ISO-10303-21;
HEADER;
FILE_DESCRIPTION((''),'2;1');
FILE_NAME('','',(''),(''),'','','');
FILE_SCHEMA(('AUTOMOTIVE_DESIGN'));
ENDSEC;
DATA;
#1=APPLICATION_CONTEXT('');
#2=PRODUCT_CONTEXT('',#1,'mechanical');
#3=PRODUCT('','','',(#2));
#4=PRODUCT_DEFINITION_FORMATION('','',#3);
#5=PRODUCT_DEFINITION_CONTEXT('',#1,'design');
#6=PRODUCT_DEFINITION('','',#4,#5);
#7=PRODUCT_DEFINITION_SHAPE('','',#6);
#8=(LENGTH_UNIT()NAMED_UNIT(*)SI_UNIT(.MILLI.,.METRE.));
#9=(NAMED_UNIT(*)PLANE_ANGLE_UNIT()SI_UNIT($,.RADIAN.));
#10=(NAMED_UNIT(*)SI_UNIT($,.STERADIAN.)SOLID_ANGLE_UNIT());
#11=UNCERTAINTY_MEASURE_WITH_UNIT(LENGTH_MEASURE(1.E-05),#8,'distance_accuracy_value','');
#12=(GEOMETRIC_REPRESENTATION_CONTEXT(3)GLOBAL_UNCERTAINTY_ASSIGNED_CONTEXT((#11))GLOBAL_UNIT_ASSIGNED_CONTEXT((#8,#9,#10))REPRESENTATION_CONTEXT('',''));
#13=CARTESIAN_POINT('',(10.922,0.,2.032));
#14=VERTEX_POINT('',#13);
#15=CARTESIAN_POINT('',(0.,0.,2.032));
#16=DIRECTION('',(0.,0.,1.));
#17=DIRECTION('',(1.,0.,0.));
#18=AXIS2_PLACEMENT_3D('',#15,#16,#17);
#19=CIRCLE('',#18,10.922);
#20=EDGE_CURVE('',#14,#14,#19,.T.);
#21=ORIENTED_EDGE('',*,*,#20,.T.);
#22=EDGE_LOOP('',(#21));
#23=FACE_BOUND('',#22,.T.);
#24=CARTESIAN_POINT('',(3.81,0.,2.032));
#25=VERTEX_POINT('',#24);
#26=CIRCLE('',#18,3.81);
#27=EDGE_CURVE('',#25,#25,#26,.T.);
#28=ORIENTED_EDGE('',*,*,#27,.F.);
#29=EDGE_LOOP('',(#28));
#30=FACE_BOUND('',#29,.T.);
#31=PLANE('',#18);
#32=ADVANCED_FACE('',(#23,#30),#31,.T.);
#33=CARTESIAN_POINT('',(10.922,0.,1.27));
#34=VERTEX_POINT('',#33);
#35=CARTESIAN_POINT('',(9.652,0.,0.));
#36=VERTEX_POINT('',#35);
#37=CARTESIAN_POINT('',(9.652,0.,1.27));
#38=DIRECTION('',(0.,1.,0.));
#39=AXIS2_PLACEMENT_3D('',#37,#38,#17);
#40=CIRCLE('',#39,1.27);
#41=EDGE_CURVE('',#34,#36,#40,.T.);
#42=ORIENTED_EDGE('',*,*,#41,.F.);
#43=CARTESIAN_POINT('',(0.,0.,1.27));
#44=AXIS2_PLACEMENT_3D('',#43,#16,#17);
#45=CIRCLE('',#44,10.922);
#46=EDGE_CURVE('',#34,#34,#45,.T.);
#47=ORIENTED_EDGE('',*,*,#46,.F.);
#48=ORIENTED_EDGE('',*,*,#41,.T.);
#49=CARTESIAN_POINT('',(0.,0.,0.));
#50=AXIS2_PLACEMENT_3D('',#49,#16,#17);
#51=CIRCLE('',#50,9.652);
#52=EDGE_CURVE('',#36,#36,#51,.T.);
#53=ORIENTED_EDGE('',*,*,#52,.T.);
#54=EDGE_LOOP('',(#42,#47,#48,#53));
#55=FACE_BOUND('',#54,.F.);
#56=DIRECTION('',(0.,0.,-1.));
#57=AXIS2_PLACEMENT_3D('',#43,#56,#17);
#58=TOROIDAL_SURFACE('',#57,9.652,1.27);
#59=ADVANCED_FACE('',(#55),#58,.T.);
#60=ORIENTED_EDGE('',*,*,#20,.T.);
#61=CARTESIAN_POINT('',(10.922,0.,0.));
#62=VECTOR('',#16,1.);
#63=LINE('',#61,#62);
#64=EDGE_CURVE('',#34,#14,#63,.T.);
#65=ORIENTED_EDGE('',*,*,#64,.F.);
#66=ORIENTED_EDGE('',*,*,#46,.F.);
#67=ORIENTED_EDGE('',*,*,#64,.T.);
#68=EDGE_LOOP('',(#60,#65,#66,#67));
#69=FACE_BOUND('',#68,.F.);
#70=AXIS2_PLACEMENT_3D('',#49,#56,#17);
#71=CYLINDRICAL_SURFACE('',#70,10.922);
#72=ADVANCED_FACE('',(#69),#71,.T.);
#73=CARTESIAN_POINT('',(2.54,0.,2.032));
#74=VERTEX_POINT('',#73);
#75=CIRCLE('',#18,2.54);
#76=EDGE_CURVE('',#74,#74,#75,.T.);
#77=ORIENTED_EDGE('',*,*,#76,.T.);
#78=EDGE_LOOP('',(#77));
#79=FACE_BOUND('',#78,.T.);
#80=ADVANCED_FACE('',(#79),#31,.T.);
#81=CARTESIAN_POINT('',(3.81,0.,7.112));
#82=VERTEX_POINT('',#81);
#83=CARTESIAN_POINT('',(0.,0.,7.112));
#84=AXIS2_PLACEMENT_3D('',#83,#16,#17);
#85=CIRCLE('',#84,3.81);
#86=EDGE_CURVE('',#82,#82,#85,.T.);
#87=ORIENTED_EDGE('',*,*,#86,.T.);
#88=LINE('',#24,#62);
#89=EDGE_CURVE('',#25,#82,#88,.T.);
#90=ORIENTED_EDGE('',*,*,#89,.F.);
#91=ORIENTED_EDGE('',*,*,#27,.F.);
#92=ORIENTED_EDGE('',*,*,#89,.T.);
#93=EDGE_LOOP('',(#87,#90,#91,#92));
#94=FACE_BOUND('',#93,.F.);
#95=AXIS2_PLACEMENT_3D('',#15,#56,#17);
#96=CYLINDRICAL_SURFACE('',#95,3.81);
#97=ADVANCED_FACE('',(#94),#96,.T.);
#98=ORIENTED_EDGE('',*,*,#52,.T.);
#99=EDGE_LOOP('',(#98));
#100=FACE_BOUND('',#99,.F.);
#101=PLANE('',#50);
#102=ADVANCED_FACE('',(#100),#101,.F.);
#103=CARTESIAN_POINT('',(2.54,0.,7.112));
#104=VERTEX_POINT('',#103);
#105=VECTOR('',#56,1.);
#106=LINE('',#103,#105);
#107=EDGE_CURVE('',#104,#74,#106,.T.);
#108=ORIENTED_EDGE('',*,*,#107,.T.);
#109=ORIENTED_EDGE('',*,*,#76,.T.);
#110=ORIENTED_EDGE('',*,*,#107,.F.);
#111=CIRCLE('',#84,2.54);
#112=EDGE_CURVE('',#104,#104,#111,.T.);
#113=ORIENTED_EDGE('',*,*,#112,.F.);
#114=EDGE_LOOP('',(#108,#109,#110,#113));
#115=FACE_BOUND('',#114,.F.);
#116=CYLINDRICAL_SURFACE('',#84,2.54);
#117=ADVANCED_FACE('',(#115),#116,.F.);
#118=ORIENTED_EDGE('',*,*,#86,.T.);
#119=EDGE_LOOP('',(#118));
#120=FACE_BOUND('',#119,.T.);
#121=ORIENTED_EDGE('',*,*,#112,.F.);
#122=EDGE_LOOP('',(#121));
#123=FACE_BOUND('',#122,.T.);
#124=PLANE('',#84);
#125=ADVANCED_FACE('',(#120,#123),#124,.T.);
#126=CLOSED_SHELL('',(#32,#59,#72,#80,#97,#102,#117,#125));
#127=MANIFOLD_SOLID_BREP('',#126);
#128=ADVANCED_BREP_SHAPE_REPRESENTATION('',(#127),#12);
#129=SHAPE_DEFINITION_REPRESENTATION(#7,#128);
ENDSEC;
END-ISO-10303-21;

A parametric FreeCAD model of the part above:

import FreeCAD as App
import Part
import Sketcher
from FreeCAD import Vector
Q = App.Units.Quantity


def edges_at(feature, points):
    """Names of the edges that pass closest to the given points."""
    edges = feature.Shape.Edges
    near = lambda p: min(range(len(edges)), key=lambda i: edges[i].distToShape(Part.Vertex(*p))[0])
    return sorted({f"Edge{near(p) + 1}" for p in points})

doc = App.newDocument("Part")
body = doc.addObject("PartDesign::Body", "Body")

# Sketch on XY plane
sketch1 = doc.addObject("Sketcher::SketchObject", "Sketch")
body.addObject(sketch1)
sketch1.AttachmentSupport = (doc.XY_Plane, [""])
sketch1.MapMode = "FlatFace"
sketch1.addGeometry(Part.Circle(Vector(0, 0, 0), Vector(0, 0, 1), 11), False)
sketch1.addConstraint(Sketcher.Constraint("Coincident", 0, 3, -1, 1))
sketch1.addConstraint(Sketcher.Constraint("Diameter", 0, Q("0.86 in")))
pad1 = doc.addObject("PartDesign::Pad", "Pad")
body.addObject(pad1)
pad1.Profile = sketch1
pad1.Length = Q("0.08 in")

# Sketch on XY plane
sketch2 = doc.addObject("Sketcher::SketchObject", "Sketch001")
body.addObject(sketch2)
sketch2.AttachmentSupport = (doc.XY_Plane, [""])
sketch2.MapMode = "FlatFace"
sketch2.AttachmentOffset = App.Placement(Vector(0, 0, 0.08 * 25.4), App.Rotation())
sketch2.addGeometry(Part.Circle(Vector(0, 0, 0), Vector(0, 0, 1), 3.8), False)
sketch2.addConstraint(Sketcher.Constraint("Coincident", 0, 3, -1, 1))
sketch2.addConstraint(Sketcher.Constraint("Diameter", 0, Q("0.3 in")))
pad2 = doc.addObject("PartDesign::Pad", "Pad001")
body.addObject(pad2)
pad2.Profile = sketch2
pad2.Length = Q("0.2 in")

# Sketch on XY plane
sketch3 = doc.addObject("Sketcher::SketchObject", "Sketch002")
body.addObject(sketch3)
sketch3.AttachmentSupport = (doc.XY_Plane, [""])
sketch3.MapMode = "FlatFace"
sketch3.AttachmentOffset = App.Placement(Vector(0, 0, 0.28 * 25.4), App.Rotation())
sketch3.addGeometry(Part.Circle(Vector(0, 0, 0), Vector(0, 0, 1), 2.5), False)
sketch3.addConstraint(Sketcher.Constraint("Coincident", 0, 3, -1, 1))
sketch3.addConstraint(Sketcher.Constraint("Diameter", 0, Q("0.2 in")))
pocket1 = doc.addObject("PartDesign::Pocket", "Pocket")
body.addObject(pocket1)
pocket1.Profile = sketch3
pocket1.Length = Q("0.2 in")
doc.recompute()

fillet = doc.addObject("PartDesign::Fillet", "Fillet")
body.addObject(fillet)
fillet.Base = (pocket1, edges_at(pocket1, [(-10.922, 0, 0)]))
fillet.Radius = Q("0.05 in")

doc.recompute()
